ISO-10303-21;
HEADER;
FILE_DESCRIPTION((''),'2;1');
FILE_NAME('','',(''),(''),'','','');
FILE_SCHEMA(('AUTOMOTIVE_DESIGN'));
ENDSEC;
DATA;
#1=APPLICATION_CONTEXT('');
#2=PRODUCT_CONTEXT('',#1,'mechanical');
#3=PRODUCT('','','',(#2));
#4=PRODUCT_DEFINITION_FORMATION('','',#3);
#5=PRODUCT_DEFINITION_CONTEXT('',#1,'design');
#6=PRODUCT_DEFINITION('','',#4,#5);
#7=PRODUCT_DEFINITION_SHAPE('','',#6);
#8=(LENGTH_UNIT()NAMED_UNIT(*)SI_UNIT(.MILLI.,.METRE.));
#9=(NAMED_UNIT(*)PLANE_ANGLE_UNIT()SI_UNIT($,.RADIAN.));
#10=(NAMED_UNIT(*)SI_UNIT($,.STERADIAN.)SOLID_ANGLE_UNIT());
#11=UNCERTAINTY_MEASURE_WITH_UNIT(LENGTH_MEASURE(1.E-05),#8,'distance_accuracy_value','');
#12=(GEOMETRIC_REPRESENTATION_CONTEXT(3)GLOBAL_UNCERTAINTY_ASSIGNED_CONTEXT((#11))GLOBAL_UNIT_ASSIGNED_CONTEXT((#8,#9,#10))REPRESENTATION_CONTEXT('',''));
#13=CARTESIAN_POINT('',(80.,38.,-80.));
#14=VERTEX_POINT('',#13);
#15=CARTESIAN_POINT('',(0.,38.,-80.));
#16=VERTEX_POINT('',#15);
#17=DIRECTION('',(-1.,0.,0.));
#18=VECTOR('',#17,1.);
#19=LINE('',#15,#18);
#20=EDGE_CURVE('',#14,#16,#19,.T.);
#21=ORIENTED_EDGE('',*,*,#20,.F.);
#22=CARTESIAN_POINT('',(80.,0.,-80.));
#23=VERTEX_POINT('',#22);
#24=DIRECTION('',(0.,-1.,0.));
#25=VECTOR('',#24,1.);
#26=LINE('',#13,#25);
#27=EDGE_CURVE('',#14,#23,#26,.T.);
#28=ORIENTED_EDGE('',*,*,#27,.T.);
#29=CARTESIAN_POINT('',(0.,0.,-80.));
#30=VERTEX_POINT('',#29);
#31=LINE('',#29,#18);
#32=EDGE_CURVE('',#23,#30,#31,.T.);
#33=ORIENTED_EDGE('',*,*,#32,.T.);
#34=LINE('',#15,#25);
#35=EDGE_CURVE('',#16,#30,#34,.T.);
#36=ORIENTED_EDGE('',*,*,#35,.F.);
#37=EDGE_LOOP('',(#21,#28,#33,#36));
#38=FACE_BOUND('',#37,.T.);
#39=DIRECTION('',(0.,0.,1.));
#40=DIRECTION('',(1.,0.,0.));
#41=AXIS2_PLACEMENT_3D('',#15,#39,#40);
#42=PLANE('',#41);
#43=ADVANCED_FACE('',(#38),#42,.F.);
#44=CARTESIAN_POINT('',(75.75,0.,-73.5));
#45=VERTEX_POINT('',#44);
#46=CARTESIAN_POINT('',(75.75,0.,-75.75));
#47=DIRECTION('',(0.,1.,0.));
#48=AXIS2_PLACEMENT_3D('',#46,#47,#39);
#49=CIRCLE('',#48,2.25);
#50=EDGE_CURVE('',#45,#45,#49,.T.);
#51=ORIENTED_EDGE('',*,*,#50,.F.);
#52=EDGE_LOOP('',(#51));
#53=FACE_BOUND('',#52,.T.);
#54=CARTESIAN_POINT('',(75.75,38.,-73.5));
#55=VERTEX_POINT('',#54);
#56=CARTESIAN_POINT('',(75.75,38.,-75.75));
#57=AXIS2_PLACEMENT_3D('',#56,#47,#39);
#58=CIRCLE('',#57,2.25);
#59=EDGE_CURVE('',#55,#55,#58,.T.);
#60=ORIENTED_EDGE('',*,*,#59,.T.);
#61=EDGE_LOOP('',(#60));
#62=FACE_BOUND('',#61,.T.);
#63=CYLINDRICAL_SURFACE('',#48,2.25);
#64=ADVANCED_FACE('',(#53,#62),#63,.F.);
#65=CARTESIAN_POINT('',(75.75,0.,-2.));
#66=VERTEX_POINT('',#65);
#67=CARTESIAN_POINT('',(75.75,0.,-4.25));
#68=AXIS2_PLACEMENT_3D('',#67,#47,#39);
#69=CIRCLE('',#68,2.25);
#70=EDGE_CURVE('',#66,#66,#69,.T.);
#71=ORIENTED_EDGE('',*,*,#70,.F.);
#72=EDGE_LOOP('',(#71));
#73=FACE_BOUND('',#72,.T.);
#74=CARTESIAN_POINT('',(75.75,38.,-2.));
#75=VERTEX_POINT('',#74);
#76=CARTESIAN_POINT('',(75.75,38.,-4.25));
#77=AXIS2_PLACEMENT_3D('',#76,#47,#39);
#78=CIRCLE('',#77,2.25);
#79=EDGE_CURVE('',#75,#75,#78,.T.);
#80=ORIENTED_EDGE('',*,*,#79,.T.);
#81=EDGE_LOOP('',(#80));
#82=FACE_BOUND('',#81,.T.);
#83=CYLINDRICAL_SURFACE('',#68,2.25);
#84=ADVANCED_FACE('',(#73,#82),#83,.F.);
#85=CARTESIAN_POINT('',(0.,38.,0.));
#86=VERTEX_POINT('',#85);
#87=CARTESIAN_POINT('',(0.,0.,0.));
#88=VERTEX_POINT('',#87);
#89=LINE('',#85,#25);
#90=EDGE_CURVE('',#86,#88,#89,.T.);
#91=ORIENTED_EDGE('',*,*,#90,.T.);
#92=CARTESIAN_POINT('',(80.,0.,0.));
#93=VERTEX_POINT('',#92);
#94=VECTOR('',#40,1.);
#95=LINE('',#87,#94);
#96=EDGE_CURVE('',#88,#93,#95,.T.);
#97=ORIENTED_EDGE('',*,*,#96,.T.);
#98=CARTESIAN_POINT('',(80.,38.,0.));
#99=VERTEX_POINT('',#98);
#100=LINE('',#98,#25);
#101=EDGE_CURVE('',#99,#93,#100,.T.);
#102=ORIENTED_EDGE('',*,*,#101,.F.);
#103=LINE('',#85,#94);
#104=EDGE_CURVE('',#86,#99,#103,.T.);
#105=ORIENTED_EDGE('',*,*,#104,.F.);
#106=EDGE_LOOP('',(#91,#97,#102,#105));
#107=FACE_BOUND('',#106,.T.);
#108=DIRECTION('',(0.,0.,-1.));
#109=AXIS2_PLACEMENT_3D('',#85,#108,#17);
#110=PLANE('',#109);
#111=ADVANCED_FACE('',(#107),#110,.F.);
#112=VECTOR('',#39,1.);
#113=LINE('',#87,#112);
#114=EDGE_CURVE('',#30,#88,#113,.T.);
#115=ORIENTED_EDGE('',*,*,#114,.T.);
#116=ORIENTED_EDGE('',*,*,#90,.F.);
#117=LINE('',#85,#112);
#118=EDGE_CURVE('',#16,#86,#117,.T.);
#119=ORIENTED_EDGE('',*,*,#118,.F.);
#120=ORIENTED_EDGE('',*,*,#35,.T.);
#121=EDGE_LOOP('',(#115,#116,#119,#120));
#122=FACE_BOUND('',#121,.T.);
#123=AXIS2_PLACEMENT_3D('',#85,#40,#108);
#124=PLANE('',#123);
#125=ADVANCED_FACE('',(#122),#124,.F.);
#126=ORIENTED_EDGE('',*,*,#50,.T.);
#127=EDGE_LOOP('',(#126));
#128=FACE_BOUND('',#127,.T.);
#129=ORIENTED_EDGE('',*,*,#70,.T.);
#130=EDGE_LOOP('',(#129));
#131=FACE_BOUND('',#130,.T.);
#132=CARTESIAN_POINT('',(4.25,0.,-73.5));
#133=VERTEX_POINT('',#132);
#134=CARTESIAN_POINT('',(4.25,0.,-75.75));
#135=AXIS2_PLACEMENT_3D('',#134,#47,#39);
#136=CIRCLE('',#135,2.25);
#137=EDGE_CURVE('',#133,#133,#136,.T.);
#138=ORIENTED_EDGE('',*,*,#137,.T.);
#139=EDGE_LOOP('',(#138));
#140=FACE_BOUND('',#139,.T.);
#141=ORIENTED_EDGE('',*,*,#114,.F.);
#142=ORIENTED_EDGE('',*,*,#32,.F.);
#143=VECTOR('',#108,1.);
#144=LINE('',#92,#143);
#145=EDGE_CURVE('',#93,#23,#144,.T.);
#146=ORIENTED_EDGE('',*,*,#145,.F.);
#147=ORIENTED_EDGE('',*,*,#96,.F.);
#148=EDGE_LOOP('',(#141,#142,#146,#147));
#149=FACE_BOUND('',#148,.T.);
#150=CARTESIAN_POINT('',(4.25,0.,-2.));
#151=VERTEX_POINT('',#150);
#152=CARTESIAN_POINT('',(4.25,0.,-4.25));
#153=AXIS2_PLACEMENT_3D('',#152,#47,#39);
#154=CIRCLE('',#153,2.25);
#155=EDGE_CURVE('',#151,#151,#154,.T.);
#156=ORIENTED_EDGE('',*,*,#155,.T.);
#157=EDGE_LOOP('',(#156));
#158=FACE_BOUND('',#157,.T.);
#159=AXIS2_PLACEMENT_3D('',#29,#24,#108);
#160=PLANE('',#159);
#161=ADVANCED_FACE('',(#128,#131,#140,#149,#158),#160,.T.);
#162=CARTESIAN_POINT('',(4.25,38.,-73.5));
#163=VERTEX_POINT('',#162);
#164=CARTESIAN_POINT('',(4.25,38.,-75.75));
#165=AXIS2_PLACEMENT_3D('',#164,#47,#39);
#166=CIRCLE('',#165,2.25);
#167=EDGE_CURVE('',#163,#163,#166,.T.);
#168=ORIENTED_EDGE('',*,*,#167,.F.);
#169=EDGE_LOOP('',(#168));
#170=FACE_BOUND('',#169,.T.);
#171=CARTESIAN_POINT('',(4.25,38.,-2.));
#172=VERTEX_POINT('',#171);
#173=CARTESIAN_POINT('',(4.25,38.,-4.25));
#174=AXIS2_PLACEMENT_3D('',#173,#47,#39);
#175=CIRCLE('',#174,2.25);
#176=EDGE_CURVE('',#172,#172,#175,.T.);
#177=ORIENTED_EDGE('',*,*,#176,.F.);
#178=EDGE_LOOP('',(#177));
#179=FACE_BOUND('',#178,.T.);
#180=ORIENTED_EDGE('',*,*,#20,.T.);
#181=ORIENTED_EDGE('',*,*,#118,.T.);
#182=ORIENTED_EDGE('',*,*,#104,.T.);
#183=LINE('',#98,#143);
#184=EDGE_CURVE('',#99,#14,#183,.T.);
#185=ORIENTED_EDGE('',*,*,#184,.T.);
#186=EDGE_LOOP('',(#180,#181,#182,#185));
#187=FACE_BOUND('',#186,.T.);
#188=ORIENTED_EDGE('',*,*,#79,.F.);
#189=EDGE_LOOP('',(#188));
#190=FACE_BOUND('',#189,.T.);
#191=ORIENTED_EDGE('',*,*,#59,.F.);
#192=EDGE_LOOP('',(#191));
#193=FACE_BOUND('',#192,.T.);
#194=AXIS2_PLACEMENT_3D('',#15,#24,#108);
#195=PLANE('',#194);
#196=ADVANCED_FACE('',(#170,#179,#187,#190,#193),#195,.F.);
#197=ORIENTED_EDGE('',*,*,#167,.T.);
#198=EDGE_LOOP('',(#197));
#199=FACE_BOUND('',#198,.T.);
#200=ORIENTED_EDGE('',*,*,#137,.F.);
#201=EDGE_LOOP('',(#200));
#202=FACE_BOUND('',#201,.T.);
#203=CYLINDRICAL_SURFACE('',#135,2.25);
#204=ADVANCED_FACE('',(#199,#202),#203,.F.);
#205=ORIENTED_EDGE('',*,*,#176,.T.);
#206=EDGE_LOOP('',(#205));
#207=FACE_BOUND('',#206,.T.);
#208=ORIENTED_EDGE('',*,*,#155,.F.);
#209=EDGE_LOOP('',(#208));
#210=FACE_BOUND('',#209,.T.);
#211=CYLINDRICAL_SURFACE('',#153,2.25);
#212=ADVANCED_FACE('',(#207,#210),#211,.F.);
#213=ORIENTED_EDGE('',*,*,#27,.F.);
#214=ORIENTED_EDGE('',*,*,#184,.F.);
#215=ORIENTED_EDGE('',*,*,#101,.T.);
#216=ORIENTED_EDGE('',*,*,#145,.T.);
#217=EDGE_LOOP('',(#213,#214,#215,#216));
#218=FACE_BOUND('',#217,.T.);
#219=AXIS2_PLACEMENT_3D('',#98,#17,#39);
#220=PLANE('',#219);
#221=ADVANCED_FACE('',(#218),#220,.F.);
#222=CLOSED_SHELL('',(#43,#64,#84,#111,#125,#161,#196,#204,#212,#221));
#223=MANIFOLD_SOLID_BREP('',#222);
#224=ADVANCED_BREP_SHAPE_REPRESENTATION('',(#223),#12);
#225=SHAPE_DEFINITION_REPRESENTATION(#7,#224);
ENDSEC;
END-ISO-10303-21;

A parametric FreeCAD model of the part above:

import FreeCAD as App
import Part
import Sketcher
from FreeCAD import Vector
Q = App.Units.Quantity


def add_polygon(sketch, points):
    """Adds a closed chain of lines whose ends are joined by coincident constraints."""
    first, n = sketch.GeometryCount, len(points)
    for a, b in zip(points, points[1:] + points[:1]):
        sketch.addGeometry(Part.LineSegment(App.Vector(*a, 0), App.Vector(*b, 0)), False)
    for i in range(n):
        sketch.addConstraint(Sketcher.Constraint("Coincident", first + i, 2, first + (i + 1) % n, 1))

doc = App.newDocument("Part")
params = doc.addObject("Spreadsheet::Sheet", "Params")
for row, (alias, value) in enumerate([
    ("sketch1_width", "80 mm"),
    ("pad1_length", "38 mm"),
    ("sketch2_diameter", "4.5 mm"),
], start=1):
    params.set(f"A{row}", alias)
    params.set(f"B{row}", "=" + value)
    params.setAlias(f"B{row}", alias)

body = doc.addObject("PartDesign::Body", "Body")

# Sketch on XZ plane
sketch1 = body.newObject("Sketcher::SketchObject", "Sketch")
sketch1.AttachmentSupport = (doc.getObject("XZ_Plane"), [""])
sketch1.MapMode = "FlatFace"
add_polygon(sketch1, [(0, -80), (0, 0), (80, 0), (80, -80)])  # lines 0-3
sketch1.addConstraint([
    Sketcher.Constraint("Vertical", 0),
    Sketcher.Constraint("Horizontal", 1),
    Sketcher.Constraint("Vertical", 2),
    Sketcher.Constraint("Horizontal", 3),
    Sketcher.Constraint("Coincident", 0, 2, -1, 1),
    Sketcher.Constraint("Equal", 3, 0),
    Sketcher.Constraint("DistanceX", 1, 1, 1, 2, Q("80 mm")),
])
sketch1.setExpression("Constraints[10]", "Params.sketch1_width")
pad1 = body.newObject("PartDesign::Pad", "Pad")
pad1.Profile = sketch1
pad1.setExpression("Length", "Params.pad1_length")
pad1.Reversed = True

# Sketch on XZ plane
sketch2 = body.newObject("Sketcher::SketchObject", "Sketch001")
sketch2.AttachmentSupport = (doc.getObject("XZ_Plane"), [""])
sketch2.MapMode = "FlatFace"
sketch2.AttachmentOffset = App.Placement(Vector(0, 0, -38), App.Rotation())
sketch2.addGeometry([
    Part.Circle(Vector(4.2, -75.8, 0), Vector(0, 0, 1), 2.2),
    Part.Circle(Vector(75.8, -75.8, 0), Vector(0, 0, 1), 2.2),
    Part.Circle(Vector(75.8, -4.2, 0), Vector(0, 0, 1), 2.2),
    Part.Circle(Vector(4.2, -4.2, 0), Vector(0, 0, 1), 2.2),
], False)
sketch2.addConstraint([
    Sketcher.Constraint("Equal", 0, 1),
    Sketcher.Constraint("Equal", 1, 2),
    Sketcher.Constraint("Equal", 2, 3),
    Sketcher.Constraint("Horizontal", 0, 3, 1, 3),
    Sketcher.Constraint("Horizontal", 2, 3, 3, 3),
    Sketcher.Constraint("Vertical", 1, 3, 2, 3),
    Sketcher.Constraint("Vertical", 0, 3, 3, 3),
    Sketcher.Constraint("Diameter", 0, Q("4.5 mm")),
    Sketcher.Constraint("DistanceX", 0, 3, 1, 3, Q("71.5 mm")),
    Sketcher.Constraint("DistanceY", 1, 3, 2, 3, Q("71.5 mm")),
    Sketcher.Constraint("DistanceX", -1, 1, 0, 3, Q("4.25 mm")),
    Sketcher.Constraint("DistanceY", 0, 3, -1, 1, Q("75.75 mm")),
])
sketch2.setExpression("Constraints[7]", "Params.sketch2_diameter")
pocket1 = body.newObject("PartDesign::Pocket", "Pocket")
pocket1.Profile = sketch2
pocket1.Type = "ThroughAll"
pocket1.Reversed = True

doc.recompute()
